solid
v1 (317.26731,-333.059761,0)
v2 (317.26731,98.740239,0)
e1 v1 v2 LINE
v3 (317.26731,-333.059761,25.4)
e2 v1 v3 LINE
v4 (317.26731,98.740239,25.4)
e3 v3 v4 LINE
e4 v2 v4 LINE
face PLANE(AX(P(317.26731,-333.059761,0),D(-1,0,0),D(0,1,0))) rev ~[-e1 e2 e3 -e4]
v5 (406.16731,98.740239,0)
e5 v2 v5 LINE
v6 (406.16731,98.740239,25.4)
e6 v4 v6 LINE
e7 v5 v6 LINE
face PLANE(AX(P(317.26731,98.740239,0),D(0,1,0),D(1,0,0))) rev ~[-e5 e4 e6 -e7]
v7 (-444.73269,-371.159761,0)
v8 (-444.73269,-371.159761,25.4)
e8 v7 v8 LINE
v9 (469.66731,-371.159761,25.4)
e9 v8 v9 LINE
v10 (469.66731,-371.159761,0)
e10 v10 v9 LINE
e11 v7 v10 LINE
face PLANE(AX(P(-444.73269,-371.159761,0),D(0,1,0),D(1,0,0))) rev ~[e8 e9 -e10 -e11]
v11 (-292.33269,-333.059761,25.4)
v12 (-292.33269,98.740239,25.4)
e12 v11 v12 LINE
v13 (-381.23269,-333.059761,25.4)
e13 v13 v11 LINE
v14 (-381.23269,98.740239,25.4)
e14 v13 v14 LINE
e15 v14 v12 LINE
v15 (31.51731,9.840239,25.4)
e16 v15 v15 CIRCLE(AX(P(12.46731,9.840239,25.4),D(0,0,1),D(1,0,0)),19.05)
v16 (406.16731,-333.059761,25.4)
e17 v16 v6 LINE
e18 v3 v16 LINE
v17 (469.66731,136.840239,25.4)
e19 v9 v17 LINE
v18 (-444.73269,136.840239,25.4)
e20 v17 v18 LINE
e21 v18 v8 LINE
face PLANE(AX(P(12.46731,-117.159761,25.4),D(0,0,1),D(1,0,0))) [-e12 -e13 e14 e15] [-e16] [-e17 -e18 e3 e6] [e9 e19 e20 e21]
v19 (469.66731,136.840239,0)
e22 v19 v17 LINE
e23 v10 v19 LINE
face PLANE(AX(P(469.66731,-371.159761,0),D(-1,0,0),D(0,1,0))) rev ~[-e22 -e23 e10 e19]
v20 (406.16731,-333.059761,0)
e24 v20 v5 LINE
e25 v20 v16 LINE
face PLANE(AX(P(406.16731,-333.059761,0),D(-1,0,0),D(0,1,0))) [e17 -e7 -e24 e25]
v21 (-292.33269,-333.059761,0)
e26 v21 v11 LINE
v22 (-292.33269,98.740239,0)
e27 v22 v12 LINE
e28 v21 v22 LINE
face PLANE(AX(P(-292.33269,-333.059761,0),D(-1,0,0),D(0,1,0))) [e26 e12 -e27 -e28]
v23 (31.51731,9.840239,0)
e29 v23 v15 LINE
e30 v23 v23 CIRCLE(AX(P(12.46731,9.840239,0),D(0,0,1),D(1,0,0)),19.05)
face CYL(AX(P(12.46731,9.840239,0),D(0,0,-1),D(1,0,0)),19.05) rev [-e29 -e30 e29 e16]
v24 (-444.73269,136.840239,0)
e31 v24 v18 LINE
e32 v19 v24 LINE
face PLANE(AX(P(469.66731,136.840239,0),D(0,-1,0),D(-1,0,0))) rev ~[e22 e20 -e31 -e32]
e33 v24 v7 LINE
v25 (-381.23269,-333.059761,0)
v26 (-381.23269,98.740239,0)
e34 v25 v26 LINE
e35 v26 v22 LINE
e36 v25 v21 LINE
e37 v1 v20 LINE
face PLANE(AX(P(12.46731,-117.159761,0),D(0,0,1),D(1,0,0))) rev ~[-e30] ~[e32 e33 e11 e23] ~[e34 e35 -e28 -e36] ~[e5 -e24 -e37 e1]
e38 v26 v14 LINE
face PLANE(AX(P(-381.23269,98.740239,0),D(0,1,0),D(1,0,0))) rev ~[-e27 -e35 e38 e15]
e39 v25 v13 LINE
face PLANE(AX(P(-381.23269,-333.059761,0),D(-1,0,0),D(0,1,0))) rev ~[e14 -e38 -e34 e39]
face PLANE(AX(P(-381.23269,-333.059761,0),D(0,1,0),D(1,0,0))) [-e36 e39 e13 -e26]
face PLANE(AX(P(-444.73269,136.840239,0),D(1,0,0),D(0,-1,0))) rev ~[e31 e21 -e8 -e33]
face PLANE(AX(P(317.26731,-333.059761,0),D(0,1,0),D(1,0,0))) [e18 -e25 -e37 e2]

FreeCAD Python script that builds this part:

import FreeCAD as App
import Part
import Sketcher

V = App.Vector
Q = App.Units.Quantity

doc = App.newDocument("Part")
body = doc.addObject("PartDesign::Body", "Body")

sketch1 = body.newObject("Sketcher::SketchObject", "Sketch")
sketch1.AttachmentSupport = (doc.getObject("XY_Plane"), [""])
sketch1.MapMode = "FlatFace"
sketch1.addGeometry(Part.LineSegment(V(469.66731, 136.840239, 0), V(-444.73269, 136.840239, 0)), False)
sketch1.addGeometry(Part.LineSegment(V(-444.73269, 136.840239, 0), V(-444.73269, -371.159761, 0)), False)
sketch1.addGeometry(Part.LineSegment(V(-444.73269, -371.159761, 0), V(469.66731, -371.159761, 0)), False)
sketch1.addGeometry(Part.LineSegment(V(469.66731, -371.159761, 0), V(469.66731, 136.840239, 0)), False)
sketch1.addGeometry(Part.LineSegment(V(-292.33269, -333.059761, 0), V(-381.23269, -333.059761, 0)), False)
sketch1.addGeometry(Part.LineSegment(V(-381.23269, -333.059761, 0), V(-381.23269, 98.740239, 0)), False)
sketch1.addGeometry(Part.LineSegment(V(-381.23269, 98.740239, 0), V(-292.33269, 98.740239, 0)), False)
sketch1.addGeometry(Part.LineSegment(V(-292.33269, 98.740239, 0), V(-292.33269, -333.059761, 0)), False)
sketch1.addGeometry(Part.LineSegment(V(406.16731, -333.059761, 0), V(317.26731, -333.059761, 0)), False)
sketch1.addGeometry(Part.LineSegment(V(317.26731, -333.059761, 0), V(317.26731, 98.740239, 0)), False)
sketch1.addGeometry(Part.LineSegment(V(317.26731, 98.740239, 0), V(406.16731, 98.740239, 0)), False)
sketch1.addGeometry(Part.LineSegment(V(406.16731, 98.740239, 0), V(406.16731, -333.059761, 0)), False)
sketch1.addGeometry(Part.Circle(V(12.46731, 9.840239, 0), V(0, 0, 1), 19.05), False)
sketch1.addConstraint(Sketcher.Constraint("Coincident", 0, 2, 1, 1))
sketch1.addConstraint(Sketcher.Constraint("Coincident", 1, 2, 2, 1))
sketch1.addConstraint(Sketcher.Constraint("Coincident", 2, 2, 3, 1))
sketch1.addConstraint(Sketcher.Constraint("Coincident", 3, 2, 0, 1))
sketch1.addConstraint(Sketcher.Constraint("Coincident", 4, 2, 5, 1))
sketch1.addConstraint(Sketcher.Constraint("Coincident", 5, 2, 6, 1))
sketch1.addConstraint(Sketcher.Constraint("Coincident", 6, 2, 7, 1))
sketch1.addConstraint(Sketcher.Constraint("Coincident", 7, 2, 4, 1))
sketch1.addConstraint(Sketcher.Constraint("Coincident", 8, 2, 9, 1))
sketch1.addConstraint(Sketcher.Constraint("Coincident", 9, 2, 10, 1))
sketch1.addConstraint(Sketcher.Constraint("Coincident", 10, 2, 11, 1))
sketch1.addConstraint(Sketcher.Constraint("Coincident", 11, 2, 8, 1))
sketch1.addConstraint(Sketcher.Constraint("Horizontal", 0))
sketch1.addConstraint(Sketcher.Constraint("Vertical", 1))
sketch1.addConstraint(Sketcher.Constraint("Horizontal", 2))
sketch1.addConstraint(Sketcher.Constraint("Vertical", 3))
sketch1.addConstraint(Sketcher.Constraint("Horizontal", 4))
sketch1.addConstraint(Sketcher.Constraint("Vertical", 5))
sketch1.addConstraint(Sketcher.Constraint("Horizontal", 6))
sketch1.addConstraint(Sketcher.Constraint("Vertical", 7))
sketch1.addConstraint(Sketcher.Constraint("Horizontal", 8))
sketch1.addConstraint(Sketcher.Constraint("Vertical", 9))
sketch1.addConstraint(Sketcher.Constraint("Horizontal", 10))
sketch1.addConstraint(Sketcher.Constraint("Vertical", 11))
sketch1.addConstraint(Sketcher.Constraint("Horizontal", 7, 2, 8, 2))
sketch1.addConstraint(Sketcher.Constraint("Horizontal", 6, 2, 9, 2))
sketch1.addConstraint(Sketcher.Constraint("Equal", 6, 8))
sketch1.addConstraint(Sketcher.Constraint("Diameter", 12, Q("1.5 in")))
sketch1.addConstraint(Sketcher.Constraint("DistanceX", 0, 2, 0, 1, Q("36 in")))
sketch1.addConstraint(Sketcher.Constraint("DistanceY", 1, 2, 1, 1, Q("20 in")))
sketch1.addConstraint(Sketcher.Constraint("DistanceY", 5, 1, 5, 2, Q("17 in")))
sketch1.addConstraint(Sketcher.Constraint("DistanceX", 4, 2, 4, 1, Q("3.5 in")))
sketch1.addConstraint(Sketcher.Constraint("DistanceX", 0, 2, 12, 3, Q("18 in")))
sketch1.addConstraint(Sketcher.Constraint("DistanceY", 12, 3, 0, 2, Q("5 in")))
sketch1.addConstraint(Sketcher.Constraint("DistanceX", 0, 2, 6, 2, Q("6 in")))
sketch1.addConstraint(Sketcher.Constraint("DistanceX", 8, 2, 2, 2, Q("6 in")))
sketch1.addConstraint(Sketcher.Constraint("DistanceY", 1, 2, 4, 2, Q("1.5 in")))
sketch1.addConstraint(Sketcher.Constraint("DistanceX", -1, 1, 12, 3, Q("12.46731 mm")))
sketch1.addConstraint(Sketcher.Constraint("DistanceY", -1, 1, 12, 3, Q("9.840239 mm")))
pad1 = body.newObject("PartDesign::Pad", "Pad")
pad1.Profile = sketch1
pad1.Length = Q("1 in")

doc.recompute()
